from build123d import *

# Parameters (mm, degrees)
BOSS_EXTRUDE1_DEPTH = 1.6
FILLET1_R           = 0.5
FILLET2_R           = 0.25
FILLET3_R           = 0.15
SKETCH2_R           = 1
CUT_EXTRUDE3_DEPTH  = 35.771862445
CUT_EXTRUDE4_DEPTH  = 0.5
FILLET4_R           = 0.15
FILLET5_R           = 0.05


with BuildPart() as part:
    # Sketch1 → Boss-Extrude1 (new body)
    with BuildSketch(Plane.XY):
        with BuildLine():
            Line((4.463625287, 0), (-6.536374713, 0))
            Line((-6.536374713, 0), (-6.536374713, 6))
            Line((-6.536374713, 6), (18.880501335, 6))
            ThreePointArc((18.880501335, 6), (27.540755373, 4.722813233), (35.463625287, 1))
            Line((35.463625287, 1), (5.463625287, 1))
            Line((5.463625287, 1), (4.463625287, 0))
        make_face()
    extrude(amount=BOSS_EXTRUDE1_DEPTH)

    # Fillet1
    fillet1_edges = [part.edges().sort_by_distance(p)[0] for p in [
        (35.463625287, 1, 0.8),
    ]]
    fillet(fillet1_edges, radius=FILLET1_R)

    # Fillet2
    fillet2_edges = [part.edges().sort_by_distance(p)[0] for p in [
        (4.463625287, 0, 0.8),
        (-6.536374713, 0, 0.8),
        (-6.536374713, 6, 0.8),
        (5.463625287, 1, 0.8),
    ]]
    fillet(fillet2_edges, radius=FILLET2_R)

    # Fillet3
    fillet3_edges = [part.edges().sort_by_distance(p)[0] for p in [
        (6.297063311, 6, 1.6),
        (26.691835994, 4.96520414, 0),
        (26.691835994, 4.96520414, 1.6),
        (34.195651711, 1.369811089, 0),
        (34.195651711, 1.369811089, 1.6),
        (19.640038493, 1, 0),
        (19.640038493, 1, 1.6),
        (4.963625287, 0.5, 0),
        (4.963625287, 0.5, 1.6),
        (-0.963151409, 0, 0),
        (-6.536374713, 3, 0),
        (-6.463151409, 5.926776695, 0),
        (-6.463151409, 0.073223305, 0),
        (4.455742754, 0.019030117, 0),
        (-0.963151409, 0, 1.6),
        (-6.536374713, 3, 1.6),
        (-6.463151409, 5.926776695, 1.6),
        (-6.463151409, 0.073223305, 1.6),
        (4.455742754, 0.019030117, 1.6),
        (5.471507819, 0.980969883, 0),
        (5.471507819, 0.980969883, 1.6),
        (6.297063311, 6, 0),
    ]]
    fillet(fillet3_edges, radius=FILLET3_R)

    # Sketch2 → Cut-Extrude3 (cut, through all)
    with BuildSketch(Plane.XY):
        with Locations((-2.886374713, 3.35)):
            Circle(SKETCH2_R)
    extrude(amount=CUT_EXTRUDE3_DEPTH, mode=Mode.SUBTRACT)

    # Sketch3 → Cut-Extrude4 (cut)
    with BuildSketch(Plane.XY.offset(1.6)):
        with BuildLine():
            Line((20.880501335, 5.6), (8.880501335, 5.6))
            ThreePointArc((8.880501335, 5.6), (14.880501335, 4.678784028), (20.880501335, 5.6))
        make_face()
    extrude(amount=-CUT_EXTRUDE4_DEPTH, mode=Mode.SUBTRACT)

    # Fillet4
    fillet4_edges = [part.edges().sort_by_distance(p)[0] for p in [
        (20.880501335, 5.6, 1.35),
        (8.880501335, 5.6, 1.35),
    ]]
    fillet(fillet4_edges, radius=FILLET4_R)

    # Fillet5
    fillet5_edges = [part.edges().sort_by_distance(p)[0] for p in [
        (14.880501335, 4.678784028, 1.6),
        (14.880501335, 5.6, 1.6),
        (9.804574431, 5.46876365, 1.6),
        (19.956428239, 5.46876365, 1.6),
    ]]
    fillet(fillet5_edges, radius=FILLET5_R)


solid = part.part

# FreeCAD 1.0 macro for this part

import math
import FreeCAD as App
import Part
import Sketcher
from FreeCAD import Vector
Q = App.Units.Quantity


def edges_at(feature, points):
    """Names of the edges that pass closest to the given points."""
    edges = feature.Shape.Edges
    near = lambda p: min(range(len(edges)), key=lambda i: edges[i].distToShape(Part.Vertex(*p))[0])
    return sorted({f"Edge{near(p) + 1}" for p in points})

doc = App.newDocument("Part")
params = doc.addObject("Spreadsheet::Sheet", "Params")
for row, (alias, value) in enumerate([
    ("sketch1_radius", "30 mm"),
    ("sketch1_width", "11 mm"),
    ("sketch1_width2", "30 mm"),
    ("sketch1_height", "6 mm"),
    ("pad1_length", "1.6 mm"),
    ("fillet_radius", "0.5 mm"),
    ("fillet2_radius", "0.25 mm"),
    ("fillet3_radius", "0.15 mm"),
    ("sketch2_diameter", "2 mm"),
    ("sketch3_radius", "20 mm"),
    ("sketch3_width", "12 mm"),
    ("pocket2_length", "0.5 mm"),
    ("fillet4_radius", "0.15 mm"),
    ("fillet5_radius", "0.05 mm"),
], start=1):
    params.set(f"A{row}", alias)
    params.set(f"B{row}", "=" + value)
    params.setAlias(f"B{row}", alias)

body = doc.addObject("PartDesign::Body", "Body")

sketch1 = doc.addObject("Sketcher::SketchObject", "Sketch")
body.addObject(sketch1)
sketch1.AttachmentSupport = (doc.XY_Plane, [""])
sketch1.MapMode = "FlatFace"
sketch1.addGeometry([
    Part.LineSegment(Vector(-6.5, 0, 0), Vector(4.5, 0, 0)),
    Part.LineSegment(Vector(4.5, 0, 0), Vector(5.5, 1, 0)),
    Part.LineSegment(Vector(5.5, 1, 0), Vector(35.5, 1, 0)),
    Part.ArcOfCircle(Part.Circle(Vector(18.9, -24, 0), Vector(0, 0, 1), 30), math.radians(56), math.radians(90)),
    Part.LineSegment(Vector(18.9, 6, 0), Vector(-6.5, 6, 0)),
    Part.LineSegment(Vector(-6.5, 6, 0), Vector(-6.5, 0, 0)),
], False)
sketch1.addConstraint([
    Sketcher.Constraint("Coincident", 0, 2, 1, 1),
    Sketcher.Constraint("Coincident", 1, 2, 2, 1),
    Sketcher.Constraint("Coincident", 2, 2, 3, 1),
    Sketcher.Constraint("Tangent", 3, 2, 4, 1),
    Sketcher.Constraint("Coincident", 4, 2, 5, 1),
    Sketcher.Constraint("Coincident", 5, 2, 0, 1),
    Sketcher.Constraint("Horizontal", 0),
    Sketcher.Constraint("Horizontal", 2),
    Sketcher.Constraint("Horizontal", 4),
    Sketcher.Constraint("Vertical", 5),
    Sketcher.Constraint("PointOnObject", 0, 2, -1),
    Sketcher.Constraint("Radius", 3, Q("30 mm")),
    Sketcher.Constraint("DistanceX", 0, 1, 0, 2, Q("11 mm")),
    Sketcher.Constraint("DistanceX", 2, 1, 2, 2, Q("30 mm")),
    Sketcher.Constraint("DistanceY", 5, 2, 5, 1, Q("6 mm")),
    Sketcher.Constraint("Angle", 1, Q("45 deg")),
    Sketcher.Constraint("DistanceY", -1, 1, 1, 2, Q("1 mm")),
    Sketcher.Constraint("DistanceX", -1, 1, 3, 3, Q("18.880501 mm")),
])
sketch1.setExpression("Constraints[11]", "Params.sketch1_radius")
sketch1.setExpression("Constraints[12]", "Params.sketch1_width")
sketch1.setExpression("Constraints[13]", "Params.sketch1_width2")
sketch1.setExpression("Constraints[14]", "Params.sketch1_height")
pad1 = doc.addObject("PartDesign::Pad", "Pad")
body.addObject(pad1)
pad1.Profile = sketch1
pad1.setExpression("Length", "Params.pad1_length")
doc.recompute()

fillet = doc.addObject("PartDesign::Fillet", "Fillet")
body.addObject(fillet)
fillet.Base = (pad1, edges_at(pad1, [(35.464, 1, 0.8)]))
fillet.setExpression("Radius", "Params.fillet_radius")
doc.recompute()

fillet2 = doc.addObject("PartDesign::Fillet", "Fillet001")
body.addObject(fillet2)
fillet2.Base = (fillet, edges_at(fillet, [
    (4.464, 0, 0.8),
    (-6.536, 0, 0.8),
    (-6.536, 6, 0.8),
    (5.464, 1, 0.8),
]))
fillet2.setExpression("Radius", "Params.fillet2_radius")
doc.recompute()

fillet3 = doc.addObject("PartDesign::Fillet", "Fillet002")
body.addObject(fillet3)
fillet3.Base = (fillet2, edges_at(fillet2, [
    (6.297, 6, 1.6),
    (26.692, 4.965, 0),
    (26.692, 4.965, 1.6),
    (34.196, 1.37, 0),
    (34.196, 1.37, 1.6),
    (19.64, 1, 0),
    (19.64, 1, 1.6),
    (4.964, 0.5, 0),
    (4.964, 0.5, 1.6),
    (-0.963, 0, 0),
    (-6.536, 3, 0),
    (-6.463, 5.927, 0),
    (-6.463, 0.073, 0),
    (4.456, 0.019, 0),
    (-0.963, 0, 1.6),
    (-6.536, 3, 1.6),
    (-6.463, 5.927, 1.6),
    (-6.463, 0.073, 1.6),
    (4.456, 0.019, 1.6),
    (5.472, 0.981, 0),
    (5.472, 0.981, 1.6),
    (6.297, 6, 0),
]))
fillet3.setExpression("Radius", "Params.fillet3_radius")

sketch2 = doc.addObject("Sketcher::SketchObject", "Sketch001")
body.addObject(sketch2)
sketch2.AttachmentSupport = (doc.XY_Plane, [""])
sketch2.MapMode = "FlatFace"
sketch2.addGeometry(Part.Circle(Vector(-2.9, 3.4, 0), Vector(0, 0, 1), 1), False)
sketch2.addConstraint([
    Sketcher.Constraint("Diameter", 0, Q("2 mm")),
    Sketcher.Constraint("DistanceY", -1, 1, 0, 3, Q("3.35 mm")),
    Sketcher.Constraint("DistanceX", 0, 3, -1, 1, Q("2.886375 mm")),
])
sketch2.setExpression("Constraints[0]", "Params.sketch2_diameter")
pocket1 = doc.addObject("PartDesign::Pocket", "Pocket")
body.addObject(pocket1)
pocket1.Profile = sketch2
pocket1.Type = "ThroughAll"
pocket1.Reversed = True

sketch3 = doc.addObject("Sketcher::SketchObject", "Sketch002")
body.addObject(sketch3)
sketch3.AttachmentSupport = (doc.XY_Plane, [""])
sketch3.MapMode = "FlatFace"
sketch3.AttachmentOffset = App.Placement(Vector(0, 0, 1.6), App.Rotation())
sketch3.addGeometry([
    Part.LineSegment(Vector(21, 6, 0), Vector(9, 6, 0)),
    Part.ArcOfCircle(Part.Circle(Vector(15, 25, 0), Vector(0, 0, 1), 20), math.radians(-107), math.radians(-73)),
], False)
sketch3.addConstraint([
    Sketcher.Constraint("Coincident", 0, 1, 1, 2),
    Sketcher.Constraint("Coincident", 1, 1, 0, 2),
    Sketcher.Constraint("Horizontal", 0),
    Sketcher.Constraint("Radius", 1, Q("20 mm")),
    Sketcher.Constraint("DistanceX", 0, 2, 0, 1, Q("12 mm")),
    Sketcher.Constraint("DistanceY", -1, 1, 0, 1, Q("5.6 mm")),
    Sketcher.Constraint("DistanceX", -1, 1, 1, 3, Q("14.880501 mm")),
])
sketch3.setExpression("Constraints[3]", "Params.sketch3_radius")
sketch3.setExpression("Constraints[4]", "Params.sketch3_width")
pocket2 = doc.addObject("PartDesign::Pocket", "Pocket001")
body.addObject(pocket2)
pocket2.Profile = sketch3
pocket2.setExpression("Length", "Params.pocket2_length")
doc.recompute()

fillet4 = doc.addObject("PartDesign::Fillet", "Fillet003")
body.addObject(fillet4)
fillet4.Base = (pocket2, edges_at(pocket2, [(20.881, 5.6, 1.35), (8.881, 5.6, 1.35)]))
fillet4.setExpression("Radius", "Params.fillet4_radius")
doc.recompute()

fillet5 = doc.addObject("PartDesign::Fillet", "Fillet004")
body.addObject(fillet5)
fillet5.Base = (fillet4, edges_at(fillet4, [
    (14.881, 4.679, 1.6),
    (14.881, 5.6, 1.6),
    (9.805, 5.469, 1.6),
    (19.956, 5.469, 1.6),
]))
fillet5.setExpression("Radius", "Params.fillet5_radius")

doc.recompute()
